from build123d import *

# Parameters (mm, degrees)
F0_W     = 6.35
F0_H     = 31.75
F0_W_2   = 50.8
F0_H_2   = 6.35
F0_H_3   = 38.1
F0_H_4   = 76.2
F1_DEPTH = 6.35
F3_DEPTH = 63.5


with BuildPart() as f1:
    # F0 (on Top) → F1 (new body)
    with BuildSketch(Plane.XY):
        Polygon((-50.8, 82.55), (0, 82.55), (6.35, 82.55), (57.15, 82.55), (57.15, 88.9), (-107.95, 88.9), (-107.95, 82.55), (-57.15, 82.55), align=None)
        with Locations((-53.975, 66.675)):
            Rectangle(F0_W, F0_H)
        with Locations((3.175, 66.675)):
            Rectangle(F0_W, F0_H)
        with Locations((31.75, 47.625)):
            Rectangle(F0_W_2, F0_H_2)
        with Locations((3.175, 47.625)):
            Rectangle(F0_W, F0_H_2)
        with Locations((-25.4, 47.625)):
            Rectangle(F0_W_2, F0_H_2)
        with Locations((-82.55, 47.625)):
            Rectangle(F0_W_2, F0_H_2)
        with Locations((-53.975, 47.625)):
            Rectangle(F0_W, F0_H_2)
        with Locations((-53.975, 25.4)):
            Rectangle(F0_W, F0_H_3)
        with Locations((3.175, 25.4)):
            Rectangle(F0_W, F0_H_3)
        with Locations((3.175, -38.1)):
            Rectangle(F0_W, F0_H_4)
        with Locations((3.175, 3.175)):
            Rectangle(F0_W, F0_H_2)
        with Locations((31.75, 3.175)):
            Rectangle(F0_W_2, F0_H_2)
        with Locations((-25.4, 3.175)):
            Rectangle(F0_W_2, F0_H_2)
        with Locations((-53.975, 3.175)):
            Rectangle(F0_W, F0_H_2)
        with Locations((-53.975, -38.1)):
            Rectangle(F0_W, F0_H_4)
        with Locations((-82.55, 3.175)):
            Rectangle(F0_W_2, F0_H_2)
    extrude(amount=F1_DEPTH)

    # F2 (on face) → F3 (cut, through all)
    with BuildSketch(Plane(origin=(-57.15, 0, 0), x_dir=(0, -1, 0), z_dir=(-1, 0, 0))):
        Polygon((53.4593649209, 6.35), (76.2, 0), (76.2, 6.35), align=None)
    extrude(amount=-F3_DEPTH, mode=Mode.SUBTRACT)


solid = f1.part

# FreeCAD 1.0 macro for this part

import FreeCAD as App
import Part
import Sketcher
from FreeCAD import Vector
Q = App.Units.Quantity


def add_polygon(sketch, points):
    """Adds a closed chain of lines whose ends are joined by coincident constraints."""
    first, n = sketch.GeometryCount, len(points)
    for a, b in zip(points, points[1:] + points[:1]):
        sketch.addGeometry(Part.LineSegment(App.Vector(*a, 0), App.Vector(*b, 0)), False)
    for i in range(n):
        sketch.addConstraint(Sketcher.Constraint("Coincident", first + i, 2, first + (i + 1) % n, 1))

doc = App.newDocument("Part")
body = doc.addObject("PartDesign::Body", "Body")

sketch1 = body.newObject("Sketcher::SketchObject", "Sketch")
sketch1.AttachmentSupport = (doc.getObject("XY_Plane"), [""])
sketch1.MapMode = "FlatFace"
add_polygon(sketch1, [(-57, 44), (-57, 6), (-108, 6), (-108, 0), (-57, 0), (-57, -76), (-51, -76), (-51, 0), (0, 0), (0, -76), (6, -76), (6, 0), (57, 0), (57, 6), (6, 6), (6, 44), (57, 44), (57, 51), (6, 51), (6, 83), (57, 83), (57, 89), (-108, 89), (-108, 83), (-57, 83), (-57, 51), (-108, 51), (-108, 44)])
add_polygon(sketch1, [(0, 6), (-51, 6), (-51, 44), (0, 44)])
add_polygon(sketch1, [(0, 51), (-51, 51), (-51, 83), (0, 83)])
sketch1.addConstraint(Sketcher.Constraint("Vertical", 0))
sketch1.addConstraint(Sketcher.Constraint("Horizontal", 1))
sketch1.addConstraint(Sketcher.Constraint("Vertical", 2))
sketch1.addConstraint(Sketcher.Constraint("Horizontal", 3))
sketch1.addConstraint(Sketcher.Constraint("Vertical", 4))
sketch1.addConstraint(Sketcher.Constraint("Horizontal", 5))
sketch1.addConstraint(Sketcher.Constraint("Vertical", 6))
sketch1.addConstraint(Sketcher.Constraint("Horizontal", 7))
sketch1.addConstraint(Sketcher.Constraint("Vertical", 8))
sketch1.addConstraint(Sketcher.Constraint("Horizontal", 9))
sketch1.addConstraint(Sketcher.Constraint("Vertical", 10))
sketch1.addConstraint(Sketcher.Constraint("Horizontal", 11))
sketch1.addConstraint(Sketcher.Constraint("Vertical", 12))
sketch1.addConstraint(Sketcher.Constraint("Horizontal", 13))
sketch1.addConstraint(Sketcher.Constraint("Vertical", 14))
sketch1.addConstraint(Sketcher.Constraint("Horizontal", 15))
sketch1.addConstraint(Sketcher.Constraint("Vertical", 16))
sketch1.addConstraint(Sketcher.Constraint("Horizontal", 17))
sketch1.addConstraint(Sketcher.Constraint("Vertical", 18))
sketch1.addConstraint(Sketcher.Constraint("Horizontal", 19))
sketch1.addConstraint(Sketcher.Constraint("Vertical", 20))
sketch1.addConstraint(Sketcher.Constraint("Horizontal", 21))
sketch1.addConstraint(Sketcher.Constraint("Vertical", 22))
sketch1.addConstraint(Sketcher.Constraint("Horizontal", 23))
sketch1.addConstraint(Sketcher.Constraint("Vertical", 24))
sketch1.addConstraint(Sketcher.Constraint("Horizontal", 25))
sketch1.addConstraint(Sketcher.Constraint("Vertical", 26))
sketch1.addConstraint(Sketcher.Constraint("Horizontal", 27))
sketch1.addConstraint(Sketcher.Constraint("Horizontal", 28))
sketch1.addConstraint(Sketcher.Constraint("Vertical", 29))
sketch1.addConstraint(Sketcher.Constraint("Horizontal", 30))
sketch1.addConstraint(Sketcher.Constraint("Vertical", 31))
sketch1.addConstraint(Sketcher.Constraint("Horizontal", 32))
sketch1.addConstraint(Sketcher.Constraint("Vertical", 33))
sketch1.addConstraint(Sketcher.Constraint("Horizontal", 34))
sketch1.addConstraint(Sketcher.Constraint("Vertical", 35))
sketch1.addConstraint(Sketcher.Constraint("Coincident", 7, 2, -1, 1))
sketch1.addConstraint(Sketcher.Constraint("Symmetric", 3, 2, 11, 2, -1, 1))
sketch1.addConstraint(Sketcher.Constraint("Symmetric", 0, 2, 12, 2, -2))
sketch1.addConstraint(Sketcher.Constraint("Symmetric", 19, 2, 23, 2, -2))
sketch1.addConstraint(Sketcher.Constraint("Symmetric", 16, 2, 24, 2, -2))
sketch1.addConstraint(Sketcher.Constraint("Symmetric", 15, 2, 27, 2, -2))
sketch1.addConstraint(Sketcher.Constraint("PointOnObject", 2, 2, -1))
sketch1.addConstraint(Sketcher.Constraint("PointOnObject", 30, 2, -2))
sketch1.addConstraint(Sketcher.Constraint("PointOnObject", 34, 2, -2))
sketch1.addConstraint(Sketcher.Constraint("Horizontal", 5, 2, 8, 2))
sketch1.addConstraint(Sketcher.Constraint("Horizontal", 13, 2, 28, 2))
sketch1.addConstraint(Sketcher.Constraint("Horizontal", 27, 2, 29, 2))
sketch1.addConstraint(Sketcher.Constraint("Horizontal", 25, 2, 32, 2))
sketch1.addConstraint(Sketcher.Constraint("Horizontal", 23, 2, 33, 2))
sketch1.addConstraint(Sketcher.Constraint("Vertical", 10, 2, 13, 2))
sketch1.addConstraint(Sketcher.Constraint("Vertical", 14, 2, 17, 2))
sketch1.addConstraint(Sketcher.Constraint("Vertical", 2, 2, 21, 2))
sketch1.addConstraint(Sketcher.Constraint("Vertical", 22, 2, 25, 2))
sketch1.addConstraint(Sketcher.Constraint("Vertical", 6, 2, 28, 2))
sketch1.addConstraint(Sketcher.Constraint("Vertical", 29, 2, 32, 2))
sketch1.addConstraint(Sketcher.Constraint("Equal", 3, 7))
sketch1.addConstraint(Sketcher.Constraint("Equal", 5, 9))
sketch1.addConstraint(Sketcher.Constraint("Equal", 9, 2))
sketch1.addConstraint(Sketcher.Constraint("Equal", 12, 16))
sketch1.addConstraint(Sketcher.Constraint("Equal", 16, 20))
sketch1.addConstraint(Sketcher.Constraint("DistanceX", 1, 2, 1, 1, Q("2 in")))
sketch1.addConstraint(Sketcher.Constraint("DistanceY", 4, 2, 4, 1, Q("3 in")))
sketch1.addConstraint(Sketcher.Constraint("DistanceX", 21, 2, 21, 1, Q("6.5 in")))
sketch1.addConstraint(Sketcher.Constraint("DistanceY", 0, 2, 0, 1, Q("1.5 in")))
sketch1.addConstraint(Sketcher.Constraint("DistanceY", 13, 2, 18, 2, Q("3 in")))
pad1 = body.newObject("PartDesign::Pad", "Pad")
pad1.Profile = sketch1
pad1.Length = Q("0.25 in")

sketch2 = body.newObject("Sketcher::SketchObject", "Sketch001")
sketch2.AttachmentSupport = (doc.getObject("YZ_Plane"), [""])
sketch2.MapMode = "FlatFace"
sketch2.AttachmentOffset = App.Placement(Vector(0, 0, -2.25 * 25.4), App.Rotation())
add_polygon(sketch2, [(-53, 6), (-76, 0), (-76, 6)])
sketch2.addConstraint(Sketcher.Constraint("Vertical", 1))
sketch2.addConstraint(Sketcher.Constraint("Horizontal", 2))
sketch2.addConstraint(Sketcher.Constraint("PointOnObject", 0, 2, -1))
sketch2.addConstraint(Sketcher.Constraint("DistanceX", 0, 2, -1, 1, Q("3 in")))
sketch2.addConstraint(Sketcher.Constraint("DistanceY", 1, 1, 1, 2, Q("0.25 in")))
sketch2.addConstraint(Sketcher.Constraint("Distance", 0, Q("23.610569 mm")))
pocket1 = body.newObject("PartDesign::Pocket", "Pocket")
pocket1.Profile = sketch2
pocket1.Type = "ThroughAll"
pocket1.Reversed = True

doc.recompute()
